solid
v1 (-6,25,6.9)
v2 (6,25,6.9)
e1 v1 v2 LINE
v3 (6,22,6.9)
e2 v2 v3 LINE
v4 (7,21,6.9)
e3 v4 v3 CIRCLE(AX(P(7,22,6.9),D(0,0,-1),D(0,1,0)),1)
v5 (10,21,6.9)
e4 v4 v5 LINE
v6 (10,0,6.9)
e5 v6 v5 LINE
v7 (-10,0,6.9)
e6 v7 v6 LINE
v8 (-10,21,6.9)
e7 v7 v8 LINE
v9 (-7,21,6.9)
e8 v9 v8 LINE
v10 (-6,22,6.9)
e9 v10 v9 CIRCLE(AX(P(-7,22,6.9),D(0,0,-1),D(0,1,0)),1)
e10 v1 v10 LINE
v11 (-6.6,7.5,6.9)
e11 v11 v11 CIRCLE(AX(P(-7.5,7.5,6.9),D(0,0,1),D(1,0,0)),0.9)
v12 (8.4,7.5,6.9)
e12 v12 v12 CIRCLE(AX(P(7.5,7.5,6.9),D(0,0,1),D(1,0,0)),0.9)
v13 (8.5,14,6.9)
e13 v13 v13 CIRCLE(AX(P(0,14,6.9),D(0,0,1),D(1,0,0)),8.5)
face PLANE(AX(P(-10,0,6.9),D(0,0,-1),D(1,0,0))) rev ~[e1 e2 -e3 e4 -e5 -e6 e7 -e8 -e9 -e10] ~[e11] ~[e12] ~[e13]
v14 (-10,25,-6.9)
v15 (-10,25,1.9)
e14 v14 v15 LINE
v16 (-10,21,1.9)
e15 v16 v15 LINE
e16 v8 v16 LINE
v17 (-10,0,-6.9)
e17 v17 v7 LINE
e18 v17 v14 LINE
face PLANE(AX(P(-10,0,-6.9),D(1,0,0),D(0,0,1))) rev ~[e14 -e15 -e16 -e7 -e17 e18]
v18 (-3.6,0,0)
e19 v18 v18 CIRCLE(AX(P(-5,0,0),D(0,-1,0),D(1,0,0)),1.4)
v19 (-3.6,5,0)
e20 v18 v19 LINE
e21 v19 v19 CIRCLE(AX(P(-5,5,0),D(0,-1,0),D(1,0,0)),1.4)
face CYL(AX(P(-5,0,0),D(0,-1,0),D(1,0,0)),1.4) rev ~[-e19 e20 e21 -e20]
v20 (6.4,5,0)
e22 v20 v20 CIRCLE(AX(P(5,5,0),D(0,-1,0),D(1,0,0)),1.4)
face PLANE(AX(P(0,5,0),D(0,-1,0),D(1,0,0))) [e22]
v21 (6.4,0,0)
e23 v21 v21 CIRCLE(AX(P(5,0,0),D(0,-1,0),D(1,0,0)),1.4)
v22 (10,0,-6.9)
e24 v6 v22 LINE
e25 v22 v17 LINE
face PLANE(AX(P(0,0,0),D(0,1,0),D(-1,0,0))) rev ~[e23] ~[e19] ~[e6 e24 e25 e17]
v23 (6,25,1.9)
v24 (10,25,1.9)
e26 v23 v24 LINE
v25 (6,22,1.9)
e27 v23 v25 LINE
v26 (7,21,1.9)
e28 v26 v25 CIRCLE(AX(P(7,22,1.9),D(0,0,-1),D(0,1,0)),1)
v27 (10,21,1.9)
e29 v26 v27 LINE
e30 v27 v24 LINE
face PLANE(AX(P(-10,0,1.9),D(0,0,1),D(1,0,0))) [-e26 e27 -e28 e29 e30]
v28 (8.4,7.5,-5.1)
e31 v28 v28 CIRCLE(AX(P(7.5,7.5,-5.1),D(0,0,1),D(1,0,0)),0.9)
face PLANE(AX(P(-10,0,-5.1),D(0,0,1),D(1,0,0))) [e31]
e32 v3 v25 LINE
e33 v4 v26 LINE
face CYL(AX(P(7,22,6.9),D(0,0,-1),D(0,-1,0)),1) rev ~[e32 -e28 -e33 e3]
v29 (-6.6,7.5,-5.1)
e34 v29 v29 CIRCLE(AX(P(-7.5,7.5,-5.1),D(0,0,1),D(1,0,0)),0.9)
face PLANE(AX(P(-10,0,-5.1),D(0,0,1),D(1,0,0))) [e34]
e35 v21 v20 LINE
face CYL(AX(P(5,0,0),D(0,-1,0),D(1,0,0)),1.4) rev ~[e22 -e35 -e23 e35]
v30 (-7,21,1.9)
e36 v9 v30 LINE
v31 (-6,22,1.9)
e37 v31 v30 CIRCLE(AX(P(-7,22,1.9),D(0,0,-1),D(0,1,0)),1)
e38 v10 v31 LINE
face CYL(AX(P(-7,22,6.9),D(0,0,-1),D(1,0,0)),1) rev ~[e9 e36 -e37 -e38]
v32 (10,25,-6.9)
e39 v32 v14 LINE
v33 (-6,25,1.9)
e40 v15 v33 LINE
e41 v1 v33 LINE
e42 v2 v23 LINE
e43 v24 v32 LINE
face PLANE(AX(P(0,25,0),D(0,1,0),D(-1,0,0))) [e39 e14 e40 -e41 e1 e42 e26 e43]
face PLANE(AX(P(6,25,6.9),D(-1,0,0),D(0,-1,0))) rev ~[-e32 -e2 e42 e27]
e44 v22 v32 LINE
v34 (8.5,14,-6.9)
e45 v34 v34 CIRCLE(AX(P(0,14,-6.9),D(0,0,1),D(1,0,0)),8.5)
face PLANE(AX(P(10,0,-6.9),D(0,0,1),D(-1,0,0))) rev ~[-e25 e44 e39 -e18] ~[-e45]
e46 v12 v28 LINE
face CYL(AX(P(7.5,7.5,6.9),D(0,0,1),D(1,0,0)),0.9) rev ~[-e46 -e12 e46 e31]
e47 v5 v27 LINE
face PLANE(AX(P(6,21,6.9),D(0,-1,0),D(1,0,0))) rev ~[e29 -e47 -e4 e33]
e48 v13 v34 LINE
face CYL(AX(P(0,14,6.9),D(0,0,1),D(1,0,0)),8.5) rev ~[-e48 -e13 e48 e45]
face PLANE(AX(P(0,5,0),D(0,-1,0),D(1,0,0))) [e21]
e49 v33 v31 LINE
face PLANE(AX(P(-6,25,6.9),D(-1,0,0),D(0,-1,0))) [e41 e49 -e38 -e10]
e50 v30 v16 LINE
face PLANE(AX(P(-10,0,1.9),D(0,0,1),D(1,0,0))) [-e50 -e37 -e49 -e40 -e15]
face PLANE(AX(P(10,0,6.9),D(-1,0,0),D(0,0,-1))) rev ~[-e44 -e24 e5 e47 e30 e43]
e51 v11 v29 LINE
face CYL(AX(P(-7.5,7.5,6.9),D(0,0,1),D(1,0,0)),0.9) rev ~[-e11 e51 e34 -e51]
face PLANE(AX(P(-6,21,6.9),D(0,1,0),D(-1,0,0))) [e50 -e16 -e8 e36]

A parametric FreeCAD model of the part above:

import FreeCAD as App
import Part
import Sketcher

V = App.Vector
Q = App.Units.Quantity


def edges_at(feature, points):
    """Names of the edges that pass closest to the given points."""
    edges = feature.Shape.Edges
    near = lambda p: min(range(len(edges)), key=lambda i: edges[i].distToShape(Part.Vertex(*p))[0])
    return sorted({f"Edge{near(p) + 1}" for p in points})


def add_polygon(sketch, points):
    """Adds a closed chain of lines whose ends are joined by coincident constraints."""
    first, n = sketch.GeometryCount, len(points)
    for a, b in zip(points, points[1:] + points[:1]):
        sketch.addGeometry(Part.LineSegment(App.Vector(*a, 0), App.Vector(*b, 0)), False)
    for i in range(n):
        sketch.addConstraint(Sketcher.Constraint("Coincident", first + i, 2, first + (i + 1) % n, 1))

doc = App.newDocument("Part")
body = doc.addObject("PartDesign::Body", "Body")

sketch1 = body.newObject("Sketcher::SketchObject", "Sketch")
sketch1.AttachmentSupport = (doc.getObject("XZ_Plane"), [""])
sketch1.MapMode = "FlatFace"
add_polygon(sketch1, [(10, 6.9), (10, -6.9), (-10, -6.9), (-10, 6.9)])
sketch1.addConstraint([
    Sketcher.Constraint("Vertical", 0),
    Sketcher.Constraint("Horizontal", 1),
    Sketcher.Constraint("Vertical", 2),
    Sketcher.Constraint("Horizontal", 3),
    Sketcher.Constraint("Symmetric", 0, 2, 2, 2, -1, 1),
    Sketcher.Constraint("DistanceX", 1, 2, 1, 1, Q("20 mm")),
    Sketcher.Constraint("DistanceY", 0, 2, 0, 1, Q("13.8 mm")),
])
pad1 = body.newObject("PartDesign::Pad", "Pad")
pad1.Profile = sketch1
pad1.Length = 25
pad1.Reversed = True

sketch2 = body.newObject("Sketcher::SketchObject", "Sketch001")
sketch2.AttachmentSupport = (doc.getObject("XY_Plane"), [""])
sketch2.MapMode = "FlatFace"
sketch2.AttachmentOffset = App.Placement(V(0, 0, 6.9), App.Rotation())
sketch2.addGeometry(Part.Circle(V(0, 14, 0), V(0, 0, 1), 8.5), False)
sketch2.addConstraint([
    Sketcher.Constraint("PointOnObject", 0, 3, -2),
    Sketcher.Constraint("Diameter", 0, Q("17 mm")),
    Sketcher.Constraint("DistanceY", -1, 1, 0, 3, Q("14 mm")),
])
pocket1 = body.newObject("PartDesign::Pocket", "Pocket")
pocket1.Profile = sketch2
pocket1.Type = "ThroughAll"

sketch3 = body.newObject("Sketcher::SketchObject", "Sketch002")
sketch3.AttachmentSupport = (doc.getObject("XY_Plane"), [""])
sketch3.MapMode = "FlatFace"
sketch3.AttachmentOffset = App.Placement(V(0, 0, 6.9), App.Rotation())
sketch3.addGeometry([
    Part.Circle(V(-7.5, 7.5, 0), V(0, 0, 1), 0.9),
    Part.Circle(V(7.5, 7.5, 0), V(0, 0, 1), 0.9),
], False)
sketch3.addConstraint([
    Sketcher.Constraint("Equal", 0, 1),
    Sketcher.Constraint("Symmetric", 0, 3, 1, 3, -2),
    Sketcher.Constraint("Diameter", 0, Q("1.8 mm")),
    Sketcher.Constraint("DistanceX", 0, 3, 1, 3, Q("15 mm")),
    Sketcher.Constraint("DistanceY", -1, 1, 0, 3, Q("7.5 mm")),
])
pocket2 = body.newObject("PartDesign::Pocket", "Pocket001")
pocket2.Profile = sketch3
pocket2.Length = 12

sketch4 = body.newObject("Sketcher::SketchObject", "Sketch003")
sketch4.AttachmentSupport = (doc.getObject("XY_Plane"), [""])
sketch4.MapMode = "FlatFace"
sketch4.AttachmentOffset = App.Placement(V(0, 0, 6.9), App.Rotation())
add_polygon(sketch4, [(-10, 25), (-10, 21), (-6, 21), (-6, 25)])
add_polygon(sketch4, [(6, 21), (10, 21), (10, 25), (6, 25)])
sketch4.addConstraint([
    Sketcher.Constraint("Vertical", 0),
    Sketcher.Constraint("Horizontal", 1),
    Sketcher.Constraint("Vertical", 2),
    Sketcher.Constraint("Horizontal", 3),
    Sketcher.Constraint("Horizontal", 4),
    Sketcher.Constraint("Vertical", 5),
    Sketcher.Constraint("Horizontal", 6),
    Sketcher.Constraint("Vertical", 7),
    Sketcher.Constraint("Symmetric", 0, 2, 4, 2, -2),
    Sketcher.Constraint("Symmetric", 2, 2, 6, 2, -2),
    Sketcher.Constraint("Equal", 6, 0),
    Sketcher.Constraint("DistanceX", 1, 1, 1, 2, Q("4 mm")),
    Sketcher.Constraint("DistanceX", 0, 2, -1, 1, Q("10 mm")),
    Sketcher.Constraint("DistanceY", -1, 1, 0, 2, Q("21 mm")),
])
pocket3 = body.newObject("PartDesign::Pocket", "Pocket002")
pocket3.Profile = sketch4
pocket3.Length = 5
doc.recompute()

fillet = body.newObject("PartDesign::Fillet", "Fillet")
fillet.Base = (pocket3, edges_at(pocket3, [(-6, 21, 4.4), (6, 21, 4.4)]))
fillet.Radius = 1

sketch5 = body.newObject("Sketcher::SketchObject", "Sketch004")
sketch5.AttachmentSupport = (doc.getObject("XZ_Plane"), [""])
sketch5.MapMode = "FlatFace"
sketch5.addGeometry([
    Part.Circle(V(-5, 0, 0), V(0, 0, 1), 1.4),
    Part.Circle(V(5, 0, 0), V(0, 0, 1), 1.4),
], False)
sketch5.addConstraint([
    Sketcher.Constraint("Equal", 0, 1),
    Sketcher.Constraint("Symmetric", 0, 3, 1, 3, -1, 1),
    Sketcher.Constraint("PointOnObject", 0, 3, -1),
    Sketcher.Constraint("Diameter", 0, Q("2.8 mm")),
    Sketcher.Constraint("DistanceX", 0, 3, -1, 1, Q("5 mm")),
])
pocket4 = body.newObject("PartDesign::Pocket", "Pocket003")
pocket4.Profile = sketch5
pocket4.Length = 5

doc.recompute()
